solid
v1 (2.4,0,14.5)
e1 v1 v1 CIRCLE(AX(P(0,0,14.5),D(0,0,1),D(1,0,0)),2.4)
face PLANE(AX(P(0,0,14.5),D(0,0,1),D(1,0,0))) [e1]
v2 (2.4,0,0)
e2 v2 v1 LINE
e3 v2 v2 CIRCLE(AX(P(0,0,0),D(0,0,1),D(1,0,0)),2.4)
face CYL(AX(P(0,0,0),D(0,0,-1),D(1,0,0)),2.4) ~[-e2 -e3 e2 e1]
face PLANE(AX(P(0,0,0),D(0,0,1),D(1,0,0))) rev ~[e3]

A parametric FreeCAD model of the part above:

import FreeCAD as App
import Part
import Sketcher
Q = App.Units.Quantity

doc = App.newDocument("Part")
body = doc.addObject("PartDesign::Body", "Body")

sketch1 = body.newObject("Sketcher::SketchObject", "Sketch")
sketch1.AttachmentSupport = (doc.getObject("XY_Plane"), [""])
sketch1.MapMode = "FlatFace"
sketch1.addGeometry(Part.Circle(App.Vector(0, 0, 0), App.Vector(0, 0, 1), 2.4), False)
sketch1.addConstraint(Sketcher.Constraint("Coincident", 0, 3, -1, 1))
sketch1.addConstraint(Sketcher.Constraint("Diameter", 0, Q("4.8 mm")))
pad1 = body.newObject("PartDesign::Pad", "Pad")
pad1.Profile = sketch1
pad1.Length = 14.5

doc.recompute()
